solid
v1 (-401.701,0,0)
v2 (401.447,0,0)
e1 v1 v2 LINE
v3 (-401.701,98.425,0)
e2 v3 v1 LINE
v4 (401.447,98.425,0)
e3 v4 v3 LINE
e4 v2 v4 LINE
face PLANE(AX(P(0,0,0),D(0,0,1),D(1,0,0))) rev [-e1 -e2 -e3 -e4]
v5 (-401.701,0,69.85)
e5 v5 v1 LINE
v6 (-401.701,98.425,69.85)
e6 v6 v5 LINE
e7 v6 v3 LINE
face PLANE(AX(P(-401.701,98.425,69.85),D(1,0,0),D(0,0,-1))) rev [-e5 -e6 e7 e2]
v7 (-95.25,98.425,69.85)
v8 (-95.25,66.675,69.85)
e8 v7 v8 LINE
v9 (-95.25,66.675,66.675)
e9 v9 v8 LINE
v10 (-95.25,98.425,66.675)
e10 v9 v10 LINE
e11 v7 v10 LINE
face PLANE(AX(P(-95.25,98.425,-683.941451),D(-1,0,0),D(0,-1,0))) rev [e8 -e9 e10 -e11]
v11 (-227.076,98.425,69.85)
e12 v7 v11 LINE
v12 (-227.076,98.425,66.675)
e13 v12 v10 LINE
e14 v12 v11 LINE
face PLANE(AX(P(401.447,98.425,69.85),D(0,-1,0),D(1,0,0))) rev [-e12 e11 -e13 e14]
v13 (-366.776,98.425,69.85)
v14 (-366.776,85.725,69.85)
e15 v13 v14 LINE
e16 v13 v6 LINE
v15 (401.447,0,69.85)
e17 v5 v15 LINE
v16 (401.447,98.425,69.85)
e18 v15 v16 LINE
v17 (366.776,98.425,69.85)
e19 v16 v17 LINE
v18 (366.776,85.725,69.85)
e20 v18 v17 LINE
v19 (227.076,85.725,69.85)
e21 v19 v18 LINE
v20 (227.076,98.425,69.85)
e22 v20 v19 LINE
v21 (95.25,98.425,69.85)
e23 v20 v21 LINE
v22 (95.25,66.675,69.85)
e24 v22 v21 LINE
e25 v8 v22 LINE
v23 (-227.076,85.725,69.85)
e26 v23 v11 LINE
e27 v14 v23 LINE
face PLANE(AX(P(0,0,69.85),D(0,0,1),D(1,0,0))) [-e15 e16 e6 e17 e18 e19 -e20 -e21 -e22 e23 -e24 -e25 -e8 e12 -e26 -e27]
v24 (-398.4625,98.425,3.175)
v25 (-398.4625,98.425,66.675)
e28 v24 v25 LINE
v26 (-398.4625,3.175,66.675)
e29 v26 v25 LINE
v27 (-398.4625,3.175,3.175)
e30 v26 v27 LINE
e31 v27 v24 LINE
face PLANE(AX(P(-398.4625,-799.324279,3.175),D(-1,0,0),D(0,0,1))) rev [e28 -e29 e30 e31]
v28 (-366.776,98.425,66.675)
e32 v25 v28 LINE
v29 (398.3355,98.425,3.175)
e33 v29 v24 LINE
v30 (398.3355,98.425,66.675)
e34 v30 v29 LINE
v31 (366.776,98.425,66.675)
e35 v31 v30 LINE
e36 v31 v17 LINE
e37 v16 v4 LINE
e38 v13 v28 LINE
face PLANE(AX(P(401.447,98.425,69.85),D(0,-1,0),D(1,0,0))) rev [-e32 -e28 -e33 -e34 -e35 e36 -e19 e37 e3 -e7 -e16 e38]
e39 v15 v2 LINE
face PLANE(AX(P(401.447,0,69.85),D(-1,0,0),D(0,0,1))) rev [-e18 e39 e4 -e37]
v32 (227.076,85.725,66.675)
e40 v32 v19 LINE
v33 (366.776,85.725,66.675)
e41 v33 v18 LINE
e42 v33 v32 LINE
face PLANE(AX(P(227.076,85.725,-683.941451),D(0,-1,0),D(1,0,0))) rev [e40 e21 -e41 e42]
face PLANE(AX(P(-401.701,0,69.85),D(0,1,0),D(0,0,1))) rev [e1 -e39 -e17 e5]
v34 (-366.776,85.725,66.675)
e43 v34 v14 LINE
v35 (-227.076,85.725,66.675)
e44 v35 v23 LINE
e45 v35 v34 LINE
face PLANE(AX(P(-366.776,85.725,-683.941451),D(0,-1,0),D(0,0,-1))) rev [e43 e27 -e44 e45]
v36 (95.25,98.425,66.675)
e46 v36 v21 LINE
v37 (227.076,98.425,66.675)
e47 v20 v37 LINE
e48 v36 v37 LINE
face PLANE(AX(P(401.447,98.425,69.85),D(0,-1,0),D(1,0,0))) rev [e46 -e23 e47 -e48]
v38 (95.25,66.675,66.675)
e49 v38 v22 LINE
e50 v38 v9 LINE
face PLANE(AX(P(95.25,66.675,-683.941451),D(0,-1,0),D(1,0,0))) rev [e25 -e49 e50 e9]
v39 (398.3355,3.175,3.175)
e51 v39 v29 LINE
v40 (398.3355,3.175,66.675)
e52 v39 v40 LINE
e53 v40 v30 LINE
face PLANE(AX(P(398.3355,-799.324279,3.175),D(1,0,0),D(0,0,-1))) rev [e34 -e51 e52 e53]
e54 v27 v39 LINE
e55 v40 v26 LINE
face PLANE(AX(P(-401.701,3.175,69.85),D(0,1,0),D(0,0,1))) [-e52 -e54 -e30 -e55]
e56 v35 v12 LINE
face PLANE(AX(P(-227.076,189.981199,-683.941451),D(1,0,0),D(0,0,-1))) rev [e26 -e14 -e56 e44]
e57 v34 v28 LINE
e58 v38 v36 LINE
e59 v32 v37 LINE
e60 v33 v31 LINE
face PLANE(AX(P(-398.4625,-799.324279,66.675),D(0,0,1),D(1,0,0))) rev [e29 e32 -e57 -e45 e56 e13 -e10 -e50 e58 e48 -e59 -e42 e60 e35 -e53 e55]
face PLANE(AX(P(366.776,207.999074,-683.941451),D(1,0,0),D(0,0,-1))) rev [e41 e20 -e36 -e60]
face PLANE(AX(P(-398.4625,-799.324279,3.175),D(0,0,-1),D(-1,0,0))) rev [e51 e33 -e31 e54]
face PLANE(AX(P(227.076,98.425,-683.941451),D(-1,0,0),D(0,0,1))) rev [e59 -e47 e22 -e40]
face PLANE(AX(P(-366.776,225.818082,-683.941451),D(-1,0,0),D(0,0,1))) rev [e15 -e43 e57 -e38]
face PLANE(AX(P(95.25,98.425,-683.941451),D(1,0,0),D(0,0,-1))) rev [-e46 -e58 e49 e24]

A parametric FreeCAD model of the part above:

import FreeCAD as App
import Part
import Sketcher
from FreeCAD import Vector
Q = App.Units.Quantity

doc = App.newDocument("Part")
params = doc.addObject("Spreadsheet::Sheet", "Params")
for row, (alias, value) in enumerate([
    ("sketch1_width", "31.62 in"),
    ("sketch1_height", "3.875 in"),
    ("pad1_length", "2.75 in"),
    ("sketch2_height", "2.5 in"),
    ("sketch2_width", "31.37 in"),
    ("pocket1_length", "3.75 in"),
    ("sketch3_width", "5.5 in"),
    ("sketch3_width2", "7.5 in"),
    ("sketch3_width3", "5.19 in"),
    ("pocket2_length", "0.125 in"),
], start=1):
    params.set(f"A{row}", alias)
    params.set(f"B{row}", "=" + value)
    params.setAlias(f"B{row}", alias)

body = doc.addObject("PartDesign::Body", "Body")

sketch1 = body.newObject("Sketcher::SketchObject", "Sketch")
sketch1.AttachmentSupport = (doc.getObject("XY_Plane"), [""])
sketch1.MapMode = "FlatFace"
sketch1.addGeometry(Part.LineSegment(Vector(401, 0, 0), Vector(401, 98, 0)), False)
sketch1.addGeometry(Part.LineSegment(Vector(401, 98, 0), Vector(-402, 98, 0)), False)
sketch1.addGeometry(Part.LineSegment(Vector(-402, 98, 0), Vector(-402, 0, 0)), False)
sketch1.addGeometry(Part.LineSegment(Vector(-402, 0, 0), Vector(401, 0, 0)), False)
sketch1.addConstraint(Sketcher.Constraint("Coincident", 0, 2, 1, 1))
sketch1.addConstraint(Sketcher.Constraint("Coincident", 1, 2, 2, 1))
sketch1.addConstraint(Sketcher.Constraint("Coincident", 2, 2, 3, 1))
sketch1.addConstraint(Sketcher.Constraint("Coincident", 3, 2, 0, 1))
sketch1.addConstraint(Sketcher.Constraint("Vertical", 0))
sketch1.addConstraint(Sketcher.Constraint("Horizontal", 1))
sketch1.addConstraint(Sketcher.Constraint("Vertical", 2))
sketch1.addConstraint(Sketcher.Constraint("Horizontal", 3))
sketch1.addConstraint(Sketcher.Constraint("PointOnObject", 2, 2, -1))
sketch1.addConstraint(Sketcher.Constraint("DistanceX", 1, 2, 1, 1, Q("31.62 in")))
sketch1.addConstraint(Sketcher.Constraint("DistanceY", 0, 1, 0, 2, Q("3.875 in")))
sketch1.addConstraint(Sketcher.Constraint("DistanceX", -1, 1, 0, 2, Q("15.805 in")))
sketch1.setExpression("Constraints[9]", "Params.sketch1_width")
sketch1.setExpression("Constraints[10]", "Params.sketch1_height")
pad1 = body.newObject("PartDesign::Pad", "Pad")
pad1.Profile = sketch1
pad1.setExpression("Length", "Params.pad1_length")

sketch2 = body.newObject("Sketcher::SketchObject", "Sketch001")
sketch2.AttachmentSupport = (doc.getObject("XZ_Plane"), [""])
sketch2.MapMode = "FlatFace"
sketch2.AttachmentOffset = App.Placement(Vector(0, 0, -3.875 * 25.4), App.Rotation())
sketch2.addGeometry(Part.LineSegment(Vector(-398, 3, 0), Vector(-398, 67, 0)), False)
sketch2.addGeometry(Part.LineSegment(Vector(-398, 67, 0), Vector(398, 67, 0)), False)
sketch2.addGeometry(Part.LineSegment(Vector(398, 67, 0), Vector(398, 3, 0)), False)
sketch2.addGeometry(Part.LineSegment(Vector(398, 3, 0), Vector(-398, 3, 0)), False)
sketch2.addConstraint(Sketcher.Constraint("Coincident", 0, 2, 1, 1))
sketch2.addConstraint(Sketcher.Constraint("Coincident", 1, 2, 2, 1))
sketch2.addConstraint(Sketcher.Constraint("Coincident", 2, 2, 3, 1))
sketch2.addConstraint(Sketcher.Constraint("Coincident", 3, 2, 0, 1))
sketch2.addConstraint(Sketcher.Constraint("Vertical", 0))
sketch2.addConstraint(Sketcher.Constraint("Horizontal", 1))
sketch2.addConstraint(Sketcher.Constraint("Vertical", 2))
sketch2.addConstraint(Sketcher.Constraint("Horizontal", 3))
sketch2.addConstraint(Sketcher.Constraint("DistanceY", 0, 1, 0, 2, Q("2.5 in")))
sketch2.addConstraint(Sketcher.Constraint("DistanceX", 1, 1, 1, 2, Q("31.37 in")))
sketch2.addConstraint(Sketcher.Constraint("DistanceX", 0, 2, -1, 1, Q("15.6875 in")))
sketch2.addConstraint(Sketcher.Constraint("DistanceY", -1, 1, 0, 2, Q("2.625 in")))
sketch2.setExpression("Constraints[8]", "Params.sketch2_height")
sketch2.setExpression("Constraints[9]", "Params.sketch2_width")
pocket1 = body.newObject("PartDesign::Pocket", "Pocket")
pocket1.Profile = sketch2
pocket1.setExpression("Length", "Params.pocket1_length")
pocket1.Reversed = True

sketch3 = body.newObject("Sketcher::SketchObject", "Sketch002")
sketch3.AttachmentSupport = (doc.getObject("XY_Plane"), [""])
sketch3.MapMode = "FlatFace"
sketch3.AttachmentOffset = App.Placement(Vector(0, 0, 2.75 * 25.4), App.Rotation())
sketch3.addGeometry(Part.LineSegment(Vector(-367, 86, 0), Vector(-227, 86, 0)), False)
sketch3.addGeometry(Part.LineSegment(Vector(-227, 86, 0), Vector(-227, 208, 0)), False)
sketch3.addGeometry(Part.LineSegment(Vector(-227, 208, 0), Vector(-95, 208, 0)), False)
sketch3.addGeometry(Part.LineSegment(Vector(-95, 208, 0), Vector(-95, 67, 0)), False)
sketch3.addGeometry(Part.LineSegment(Vector(-95, 67, 0), Vector(95, 67, 0)), False)
sketch3.addGeometry(Part.LineSegment(Vector(95, 67, 0), Vector(95, 208, 0)), False)
sketch3.addGeometry(Part.LineSegment(Vector(95, 208, 0), Vector(227, 208, 0)), False)
sketch3.addGeometry(Part.LineSegment(Vector(227, 208, 0), Vector(227, 86, 0)), False)
sketch3.addGeometry(Part.LineSegment(Vector(227, 86, 0), Vector(367, 86, 0)), False)
sketch3.addGeometry(Part.LineSegment(Vector(367, 86, 0), Vector(367, 226, 0)), False)
sketch3.addGeometry(Part.LineSegment(Vector(367, 226, 0), Vector(-367, 226, 0)), False)
sketch3.addGeometry(Part.LineSegment(Vector(-367, 226, 0), Vector(-367, 86, 0)), False)
sketch3.addConstraint(Sketcher.Constraint("Coincident", 0, 2, 1, 1))
sketch3.addConstraint(Sketcher.Constraint("Coincident", 1, 2, 2, 1))
sketch3.addConstraint(Sketcher.Constraint("Coincident", 2, 2, 3, 1))
sketch3.addConstraint(Sketcher.Constraint("Coincident", 3, 2, 4, 1))
sketch3.addConstraint(Sketcher.Constraint("Coincident", 4, 2, 5, 1))
sketch3.addConstraint(Sketcher.Constraint("Coincident", 5, 2, 6, 1))
sketch3.addConstraint(Sketcher.Constraint("Coincident", 6, 2, 7, 1))
sketch3.addConstraint(Sketcher.Constraint("Coincident", 7, 2, 8, 1))
sketch3.addConstraint(Sketcher.Constraint("Coincident", 8, 2, 9, 1))
sketch3.addConstraint(Sketcher.Constraint("Coincident", 9, 2, 10, 1))
sketch3.addConstraint(Sketcher.Constraint("Coincident", 10, 2, 11, 1))
sketch3.addConstraint(Sketcher.Constraint("Coincident", 11, 2, 0, 1))
sketch3.addConstraint(Sketcher.Constraint("Horizontal", 0))
sketch3.addConstraint(Sketcher.Constraint("Vertical", 1))
sketch3.addConstraint(Sketcher.Constraint("Horizontal", 2))
sketch3.addConstraint(Sketcher.Constraint("Vertical", 3))
sketch3.addConstraint(Sketcher.Constraint("Horizontal", 4))
sketch3.addConstraint(Sketcher.Constraint("Vertical", 5))
sketch3.addConstraint(Sketcher.Constraint("Horizontal", 6))
sketch3.addConstraint(Sketcher.Constraint("Vertical", 7))
sketch3.addConstraint(Sketcher.Constraint("Horizontal", 8))
sketch3.addConstraint(Sketcher.Constraint("Vertical", 9))
sketch3.addConstraint(Sketcher.Constraint("Horizontal", 10))
sketch3.addConstraint(Sketcher.Constraint("Vertical", 11))
sketch3.addConstraint(Sketcher.Constraint("Symmetric", 2, 2, 5, 2, -2))
sketch3.addConstraint(Sketcher.Constraint("Symmetric", 0, 2, 7, 2, -2))
sketch3.addConstraint(Sketcher.Constraint("Equal", 0, 8))
sketch3.addConstraint(Sketcher.Constraint("DistanceX", 0, 1, 0, 2, Q("5.5 in")))
sketch3.addConstraint(Sketcher.Constraint("DistanceX", 4, 1, 4, 2, Q("7.5 in")))
sketch3.addConstraint(Sketcher.Constraint("DistanceX", 2, 1, 2, 2, Q("5.19 in")))
sketch3.addConstraint(Sketcher.Constraint("DistanceY", 3, 2, 0, 2, Q("0.75 in")))
sketch3.addConstraint(Sketcher.Constraint("DistanceY", -1, 1, 0, 2, Q("3.375 in")))
sketch3.addConstraint(Sketcher.Constraint("DistanceY", 9, 1, 9, 2, 140.093082))
sketch3.addConstraint(Sketcher.Constraint("DistanceY", 1, 1, 1, 2, 122.274074))
sketch3.setExpression("Constraints[27]", "Params.sketch3_width")
sketch3.setExpression("Constraints[28]", "Params.sketch3_width2")
sketch3.setExpression("Constraints[29]", "Params.sketch3_width3")
pocket2 = body.newObject("PartDesign::Pocket", "Pocket001")
pocket2.Profile = sketch3
pocket2.setExpression("Length", "Params.pocket2_length")

doc.recompute()
